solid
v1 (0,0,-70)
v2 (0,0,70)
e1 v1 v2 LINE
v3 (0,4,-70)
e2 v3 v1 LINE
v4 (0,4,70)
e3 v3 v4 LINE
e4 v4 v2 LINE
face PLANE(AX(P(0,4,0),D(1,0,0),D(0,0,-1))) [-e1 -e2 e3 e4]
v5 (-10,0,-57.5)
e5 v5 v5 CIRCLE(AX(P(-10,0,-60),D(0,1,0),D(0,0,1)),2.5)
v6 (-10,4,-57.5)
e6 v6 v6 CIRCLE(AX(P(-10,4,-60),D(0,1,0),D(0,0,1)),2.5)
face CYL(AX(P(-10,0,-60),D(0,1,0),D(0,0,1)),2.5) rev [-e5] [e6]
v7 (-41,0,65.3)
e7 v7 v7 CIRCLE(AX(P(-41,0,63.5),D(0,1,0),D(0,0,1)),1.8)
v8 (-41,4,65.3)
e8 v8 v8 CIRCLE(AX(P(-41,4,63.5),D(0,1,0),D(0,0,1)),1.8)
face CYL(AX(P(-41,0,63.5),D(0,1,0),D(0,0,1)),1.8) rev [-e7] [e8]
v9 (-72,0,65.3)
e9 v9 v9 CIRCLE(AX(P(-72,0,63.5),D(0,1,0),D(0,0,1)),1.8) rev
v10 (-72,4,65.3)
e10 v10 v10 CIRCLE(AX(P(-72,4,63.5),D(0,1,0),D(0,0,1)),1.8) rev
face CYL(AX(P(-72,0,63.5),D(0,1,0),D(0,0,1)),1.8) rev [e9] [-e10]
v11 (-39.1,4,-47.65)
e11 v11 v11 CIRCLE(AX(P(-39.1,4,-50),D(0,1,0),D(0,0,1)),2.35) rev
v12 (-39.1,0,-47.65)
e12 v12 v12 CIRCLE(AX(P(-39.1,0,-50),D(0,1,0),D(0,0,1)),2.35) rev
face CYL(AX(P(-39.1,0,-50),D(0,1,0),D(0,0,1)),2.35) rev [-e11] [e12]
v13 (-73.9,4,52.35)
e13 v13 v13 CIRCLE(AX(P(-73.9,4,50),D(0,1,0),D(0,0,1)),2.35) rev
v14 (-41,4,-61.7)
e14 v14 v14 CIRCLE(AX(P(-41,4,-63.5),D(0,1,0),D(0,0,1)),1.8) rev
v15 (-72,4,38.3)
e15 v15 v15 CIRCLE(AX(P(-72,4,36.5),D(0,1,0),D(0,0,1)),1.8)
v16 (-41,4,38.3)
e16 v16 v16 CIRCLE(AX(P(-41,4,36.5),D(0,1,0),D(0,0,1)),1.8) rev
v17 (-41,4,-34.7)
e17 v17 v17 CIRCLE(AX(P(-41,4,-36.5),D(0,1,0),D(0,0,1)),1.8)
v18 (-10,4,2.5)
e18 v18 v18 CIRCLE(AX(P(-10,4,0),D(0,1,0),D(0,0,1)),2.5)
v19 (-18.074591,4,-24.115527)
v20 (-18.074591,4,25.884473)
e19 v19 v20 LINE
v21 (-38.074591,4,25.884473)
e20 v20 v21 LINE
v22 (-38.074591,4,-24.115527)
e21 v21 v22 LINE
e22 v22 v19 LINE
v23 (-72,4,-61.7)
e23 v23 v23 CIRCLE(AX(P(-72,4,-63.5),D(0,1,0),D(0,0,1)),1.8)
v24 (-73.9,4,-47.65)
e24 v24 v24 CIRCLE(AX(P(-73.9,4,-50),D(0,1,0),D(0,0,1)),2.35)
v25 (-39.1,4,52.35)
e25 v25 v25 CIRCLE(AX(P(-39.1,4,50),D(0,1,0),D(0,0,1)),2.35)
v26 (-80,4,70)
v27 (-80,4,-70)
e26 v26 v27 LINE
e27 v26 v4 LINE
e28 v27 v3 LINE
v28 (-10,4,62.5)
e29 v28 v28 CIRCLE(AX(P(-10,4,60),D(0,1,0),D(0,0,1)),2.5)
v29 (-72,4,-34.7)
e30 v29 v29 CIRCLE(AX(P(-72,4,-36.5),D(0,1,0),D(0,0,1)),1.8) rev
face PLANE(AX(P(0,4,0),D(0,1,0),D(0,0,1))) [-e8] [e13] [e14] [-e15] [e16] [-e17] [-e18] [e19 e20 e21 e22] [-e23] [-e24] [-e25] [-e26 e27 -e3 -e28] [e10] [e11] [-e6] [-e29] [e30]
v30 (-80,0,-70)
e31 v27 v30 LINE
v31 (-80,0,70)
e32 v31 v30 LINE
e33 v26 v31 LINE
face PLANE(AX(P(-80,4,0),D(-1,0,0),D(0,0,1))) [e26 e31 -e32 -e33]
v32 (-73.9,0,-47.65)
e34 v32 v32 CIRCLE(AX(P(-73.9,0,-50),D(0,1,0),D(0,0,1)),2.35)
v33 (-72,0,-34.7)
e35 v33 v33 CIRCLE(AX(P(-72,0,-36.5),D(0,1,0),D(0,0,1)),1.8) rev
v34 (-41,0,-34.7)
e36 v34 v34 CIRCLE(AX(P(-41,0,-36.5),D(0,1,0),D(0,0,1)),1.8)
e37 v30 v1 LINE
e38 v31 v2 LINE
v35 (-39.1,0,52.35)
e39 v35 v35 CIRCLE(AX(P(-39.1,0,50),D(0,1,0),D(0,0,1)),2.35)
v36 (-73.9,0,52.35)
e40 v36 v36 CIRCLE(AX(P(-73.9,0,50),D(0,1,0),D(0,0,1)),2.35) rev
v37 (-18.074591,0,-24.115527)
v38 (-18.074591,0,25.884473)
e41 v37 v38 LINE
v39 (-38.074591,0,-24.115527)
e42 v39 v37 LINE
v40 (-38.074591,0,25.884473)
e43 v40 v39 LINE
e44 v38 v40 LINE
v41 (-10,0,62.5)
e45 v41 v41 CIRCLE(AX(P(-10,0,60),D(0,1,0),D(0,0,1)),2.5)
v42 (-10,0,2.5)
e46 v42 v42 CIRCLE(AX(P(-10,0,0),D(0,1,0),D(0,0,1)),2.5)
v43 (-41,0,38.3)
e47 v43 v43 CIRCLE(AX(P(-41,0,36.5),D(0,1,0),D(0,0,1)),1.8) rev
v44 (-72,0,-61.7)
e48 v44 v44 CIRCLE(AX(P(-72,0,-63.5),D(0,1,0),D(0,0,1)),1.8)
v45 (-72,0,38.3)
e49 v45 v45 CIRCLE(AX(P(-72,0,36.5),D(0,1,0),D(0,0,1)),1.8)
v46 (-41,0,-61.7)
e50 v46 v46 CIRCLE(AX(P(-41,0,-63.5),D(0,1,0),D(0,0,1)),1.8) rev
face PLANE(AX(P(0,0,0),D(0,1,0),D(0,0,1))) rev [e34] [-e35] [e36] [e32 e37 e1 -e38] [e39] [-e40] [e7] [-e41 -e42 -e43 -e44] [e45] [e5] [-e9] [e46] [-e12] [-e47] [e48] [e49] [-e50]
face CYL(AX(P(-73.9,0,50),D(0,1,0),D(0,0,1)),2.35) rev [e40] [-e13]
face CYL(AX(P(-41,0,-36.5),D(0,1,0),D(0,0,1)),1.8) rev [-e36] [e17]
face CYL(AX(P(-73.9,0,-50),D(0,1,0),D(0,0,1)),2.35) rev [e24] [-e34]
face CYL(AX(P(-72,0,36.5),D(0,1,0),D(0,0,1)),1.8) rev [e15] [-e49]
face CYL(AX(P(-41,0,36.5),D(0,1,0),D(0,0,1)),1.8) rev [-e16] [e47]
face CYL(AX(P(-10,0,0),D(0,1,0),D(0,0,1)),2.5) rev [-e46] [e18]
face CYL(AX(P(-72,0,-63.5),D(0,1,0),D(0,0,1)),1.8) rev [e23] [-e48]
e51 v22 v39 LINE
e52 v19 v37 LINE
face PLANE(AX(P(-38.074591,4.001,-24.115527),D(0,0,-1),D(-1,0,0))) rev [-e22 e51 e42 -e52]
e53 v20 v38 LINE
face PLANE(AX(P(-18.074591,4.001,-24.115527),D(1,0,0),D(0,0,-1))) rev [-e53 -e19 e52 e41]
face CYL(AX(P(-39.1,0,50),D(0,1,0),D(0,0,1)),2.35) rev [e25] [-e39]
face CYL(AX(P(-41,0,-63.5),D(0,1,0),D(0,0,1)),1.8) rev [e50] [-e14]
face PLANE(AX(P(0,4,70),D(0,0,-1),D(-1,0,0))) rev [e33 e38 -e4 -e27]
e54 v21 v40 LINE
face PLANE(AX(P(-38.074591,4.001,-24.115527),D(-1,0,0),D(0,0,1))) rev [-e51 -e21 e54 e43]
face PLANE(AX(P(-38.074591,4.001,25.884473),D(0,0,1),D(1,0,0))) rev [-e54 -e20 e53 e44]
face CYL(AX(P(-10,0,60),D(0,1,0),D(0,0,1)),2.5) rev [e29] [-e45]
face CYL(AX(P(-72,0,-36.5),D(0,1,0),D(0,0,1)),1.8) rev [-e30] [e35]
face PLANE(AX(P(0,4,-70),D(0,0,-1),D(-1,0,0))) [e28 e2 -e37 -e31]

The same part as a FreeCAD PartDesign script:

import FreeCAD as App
import Part
import Sketcher
Q = App.Units.Quantity


def add_polygon(sketch, points):
    """Adds a closed chain of lines whose ends are joined by coincident constraints."""
    first, n = sketch.GeometryCount, len(points)
    for a, b in zip(points, points[1:] + points[:1]):
        sketch.addGeometry(Part.LineSegment(App.Vector(*a, 0), App.Vector(*b, 0)), False)
    for i in range(n):
        sketch.addConstraint(Sketcher.Constraint("Coincident", first + i, 2, first + (i + 1) % n, 1))

doc = App.newDocument("Part")
body = doc.addObject("PartDesign::Body", "Body")

sketch1 = body.newObject("Sketcher::SketchObject", "Sketch")
sketch1.AttachmentSupport = (doc.getObject("XZ_Plane"), [""])
sketch1.MapMode = "FlatFace"
add_polygon(sketch1, [(-80, -70), (-80, 70), (0, 70), (0, -70)])
sketch1.addConstraint([
    Sketcher.Constraint("Vertical", 0),
    Sketcher.Constraint("Horizontal", 1),
    Sketcher.Constraint("Vertical", 2),
    Sketcher.Constraint("Horizontal", 3),
    Sketcher.Constraint("Symmetric", 1, 2, 2, 2, -1, 1),
    Sketcher.Constraint("DistanceX", 1, 1, 1, 2, Q("80 mm")),
    Sketcher.Constraint("DistanceY", 0, 1, 0, 2, Q("140 mm")),
])
pad1 = body.newObject("PartDesign::Pad", "Pad")
pad1.Profile = sketch1
pad1.Length = 4
pad1.Reversed = True

sketch2 = body.newObject("Sketcher::SketchObject", "Sketch001")
sketch2.AttachmentSupport = (doc.getObject("XZ_Plane"), [""])
sketch2.MapMode = "FlatFace"
sketch2.AttachmentOffset = App.Placement(App.Vector(0, 0, -4), App.Rotation())
sketch2.addGeometry([
    Part.Circle(App.Vector(-72, -63.5, 0), App.Vector(0, 0, 1), 1.8),
    Part.Circle(App.Vector(-41, -63.5, 0), App.Vector(0, 0, 1), 1.8),
    Part.Circle(App.Vector(-41, -36.5, 0), App.Vector(0, 0, 1), 1.8),
    Part.Circle(App.Vector(-72, -36.5, 0), App.Vector(0, 0, 1), 1.8),
    Part.Circle(App.Vector(-41, 63.5, 0), App.Vector(0, 0, 1), 1.8),
    Part.Circle(App.Vector(-41, 36.5, 0), App.Vector(0, 0, 1), 1.8),
    Part.Circle(App.Vector(-72, 36.5, 0), App.Vector(0, 0, 1), 1.8),
    Part.Circle(App.Vector(-72, 63.5, 0), App.Vector(0, 0, 1), 1.8),
    Part.Circle(App.Vector(-73.9, -50, 0), App.Vector(0, 0, 1), 2.4),
    Part.Circle(App.Vector(-73.9, 50, 0), App.Vector(0, 0, 1), 2.4),
    Part.Circle(App.Vector(-39.1, 50, 0), App.Vector(0, 0, 1), 2.4),
    Part.Circle(App.Vector(-39.1, -50, 0), App.Vector(0, 0, 1), 2.4),
    Part.Circle(App.Vector(-10, -60, 0), App.Vector(0, 0, 1), 2.5),
    Part.Circle(App.Vector(-10, 0, 0), App.Vector(0, 0, 1), 2.5),
    Part.Circle(App.Vector(-10, 60, 0), App.Vector(0, 0, 1), 2.5),
], False)
sketch2.addConstraint([
    Sketcher.Constraint("Equal", 0, 1),
    Sketcher.Constraint("Equal", 1, 2),
    Sketcher.Constraint("Equal", 2, 3),
    Sketcher.Constraint("Equal", 3, 4),
    Sketcher.Constraint("Equal", 4, 5),
    Sketcher.Constraint("Equal", 5, 6),
    Sketcher.Constraint("Equal", 6, 7),
    Sketcher.Constraint("Equal", 8, 9),
    Sketcher.Constraint("Equal", 9, 10),
    Sketcher.Constraint("Equal", 10, 11),
    Sketcher.Constraint("Equal", 12, 13),
    Sketcher.Constraint("Equal", 13, 14),
    Sketcher.Constraint("Symmetric", 1, 3, 4, 3, -1),
    Sketcher.Constraint("Symmetric", 2, 3, 5, 3, -1),
    Sketcher.Constraint("Symmetric", 3, 3, 6, 3, -1),
    Sketcher.Constraint("Symmetric", 0, 3, 7, 3, -1),
    Sketcher.Constraint("Symmetric", 8, 3, 9, 3, -1),
    Sketcher.Constraint("Symmetric", 10, 3, 11, 3, -1),
    Sketcher.Constraint("Symmetric", 12, 3, 14, 3, -1),
    Sketcher.Constraint("PointOnObject", 13, 3, -1),
    Sketcher.Constraint("Horizontal", 0, 3, 1, 3),
    Sketcher.Constraint("Horizontal", 2, 3, 3, 3),
    Sketcher.Constraint("Horizontal", 9, 3, 10, 3),
    Sketcher.Constraint("Vertical", 1, 3, 2, 3),
    Sketcher.Constraint("Vertical", 0, 3, 3, 3),
    Sketcher.Constraint("Vertical", 12, 3, 13, 3),
    Sketcher.Constraint("Diameter", 12, Q("5 mm")),
    Sketcher.Constraint("Diameter", 0, Q("3.6 mm")),
    Sketcher.Constraint("Diameter", 8, Q("4.7 mm")),
    Sketcher.Constraint("DistanceX", 0, 3, -1, 1, Q("72 mm")),
    Sketcher.Constraint("DistanceX", 1, 3, -1, 1, Q("41 mm")),
    Sketcher.Constraint("DistanceY", 8, 3, -1, 1, Q("50 mm")),
    Sketcher.Constraint("DistanceX", 12, 3, -1, 1, Q("10 mm")),
    Sketcher.Constraint("DistanceY", 12, 3, -1, 1, Q("60 mm")),
    Sketcher.Constraint("DistanceY", 1, 3, 2, 3, Q("27 mm")),
    Sketcher.Constraint("DistanceY", 2, 3, 4, 3, Q("100 mm")),
    Sketcher.Constraint("DistanceX", 8, 3, -1, 1, Q("73.9 mm")),
    Sketcher.Constraint("DistanceX", 10, 3, -1, 1, Q("39.1 mm")),
])
pocket1 = body.newObject("PartDesign::Pocket", "Pocket")
pocket1.Profile = sketch2
pocket1.Length = 4
pocket1.Reversed = True

sketch3 = body.newObject("Sketcher::SketchObject", "Sketch002")
sketch3.AttachmentSupport = (doc.getObject("XZ_Plane"), [""])
sketch3.MapMode = "FlatFace"
add_polygon(sketch3, [(-38, 26), (-38, -24), (-18, -24), (-18, 26)])
sketch3.addConstraint([
    Sketcher.Constraint("Vertical", 0),
    Sketcher.Constraint("Horizontal", 1),
    Sketcher.Constraint("Vertical", 2),
    Sketcher.Constraint("Horizontal", 3),
    Sketcher.Constraint("DistanceX", 1, 1, 1, 2, Q("20 mm")),
    Sketcher.Constraint("DistanceY", 0, 2, 0, 1, Q("50 mm")),
    Sketcher.Constraint("DistanceX", 0, 2, -1, 1, Q("38.074591 mm")),
    Sketcher.Constraint("DistanceY", 0, 2, -1, 1, Q("24.115527 mm")),
])
pocket2 = body.newObject("PartDesign::Pocket", "Pocket001")
pocket2.Profile = sketch3
pocket2.Type = "UpToFirst"

doc.recompute()
